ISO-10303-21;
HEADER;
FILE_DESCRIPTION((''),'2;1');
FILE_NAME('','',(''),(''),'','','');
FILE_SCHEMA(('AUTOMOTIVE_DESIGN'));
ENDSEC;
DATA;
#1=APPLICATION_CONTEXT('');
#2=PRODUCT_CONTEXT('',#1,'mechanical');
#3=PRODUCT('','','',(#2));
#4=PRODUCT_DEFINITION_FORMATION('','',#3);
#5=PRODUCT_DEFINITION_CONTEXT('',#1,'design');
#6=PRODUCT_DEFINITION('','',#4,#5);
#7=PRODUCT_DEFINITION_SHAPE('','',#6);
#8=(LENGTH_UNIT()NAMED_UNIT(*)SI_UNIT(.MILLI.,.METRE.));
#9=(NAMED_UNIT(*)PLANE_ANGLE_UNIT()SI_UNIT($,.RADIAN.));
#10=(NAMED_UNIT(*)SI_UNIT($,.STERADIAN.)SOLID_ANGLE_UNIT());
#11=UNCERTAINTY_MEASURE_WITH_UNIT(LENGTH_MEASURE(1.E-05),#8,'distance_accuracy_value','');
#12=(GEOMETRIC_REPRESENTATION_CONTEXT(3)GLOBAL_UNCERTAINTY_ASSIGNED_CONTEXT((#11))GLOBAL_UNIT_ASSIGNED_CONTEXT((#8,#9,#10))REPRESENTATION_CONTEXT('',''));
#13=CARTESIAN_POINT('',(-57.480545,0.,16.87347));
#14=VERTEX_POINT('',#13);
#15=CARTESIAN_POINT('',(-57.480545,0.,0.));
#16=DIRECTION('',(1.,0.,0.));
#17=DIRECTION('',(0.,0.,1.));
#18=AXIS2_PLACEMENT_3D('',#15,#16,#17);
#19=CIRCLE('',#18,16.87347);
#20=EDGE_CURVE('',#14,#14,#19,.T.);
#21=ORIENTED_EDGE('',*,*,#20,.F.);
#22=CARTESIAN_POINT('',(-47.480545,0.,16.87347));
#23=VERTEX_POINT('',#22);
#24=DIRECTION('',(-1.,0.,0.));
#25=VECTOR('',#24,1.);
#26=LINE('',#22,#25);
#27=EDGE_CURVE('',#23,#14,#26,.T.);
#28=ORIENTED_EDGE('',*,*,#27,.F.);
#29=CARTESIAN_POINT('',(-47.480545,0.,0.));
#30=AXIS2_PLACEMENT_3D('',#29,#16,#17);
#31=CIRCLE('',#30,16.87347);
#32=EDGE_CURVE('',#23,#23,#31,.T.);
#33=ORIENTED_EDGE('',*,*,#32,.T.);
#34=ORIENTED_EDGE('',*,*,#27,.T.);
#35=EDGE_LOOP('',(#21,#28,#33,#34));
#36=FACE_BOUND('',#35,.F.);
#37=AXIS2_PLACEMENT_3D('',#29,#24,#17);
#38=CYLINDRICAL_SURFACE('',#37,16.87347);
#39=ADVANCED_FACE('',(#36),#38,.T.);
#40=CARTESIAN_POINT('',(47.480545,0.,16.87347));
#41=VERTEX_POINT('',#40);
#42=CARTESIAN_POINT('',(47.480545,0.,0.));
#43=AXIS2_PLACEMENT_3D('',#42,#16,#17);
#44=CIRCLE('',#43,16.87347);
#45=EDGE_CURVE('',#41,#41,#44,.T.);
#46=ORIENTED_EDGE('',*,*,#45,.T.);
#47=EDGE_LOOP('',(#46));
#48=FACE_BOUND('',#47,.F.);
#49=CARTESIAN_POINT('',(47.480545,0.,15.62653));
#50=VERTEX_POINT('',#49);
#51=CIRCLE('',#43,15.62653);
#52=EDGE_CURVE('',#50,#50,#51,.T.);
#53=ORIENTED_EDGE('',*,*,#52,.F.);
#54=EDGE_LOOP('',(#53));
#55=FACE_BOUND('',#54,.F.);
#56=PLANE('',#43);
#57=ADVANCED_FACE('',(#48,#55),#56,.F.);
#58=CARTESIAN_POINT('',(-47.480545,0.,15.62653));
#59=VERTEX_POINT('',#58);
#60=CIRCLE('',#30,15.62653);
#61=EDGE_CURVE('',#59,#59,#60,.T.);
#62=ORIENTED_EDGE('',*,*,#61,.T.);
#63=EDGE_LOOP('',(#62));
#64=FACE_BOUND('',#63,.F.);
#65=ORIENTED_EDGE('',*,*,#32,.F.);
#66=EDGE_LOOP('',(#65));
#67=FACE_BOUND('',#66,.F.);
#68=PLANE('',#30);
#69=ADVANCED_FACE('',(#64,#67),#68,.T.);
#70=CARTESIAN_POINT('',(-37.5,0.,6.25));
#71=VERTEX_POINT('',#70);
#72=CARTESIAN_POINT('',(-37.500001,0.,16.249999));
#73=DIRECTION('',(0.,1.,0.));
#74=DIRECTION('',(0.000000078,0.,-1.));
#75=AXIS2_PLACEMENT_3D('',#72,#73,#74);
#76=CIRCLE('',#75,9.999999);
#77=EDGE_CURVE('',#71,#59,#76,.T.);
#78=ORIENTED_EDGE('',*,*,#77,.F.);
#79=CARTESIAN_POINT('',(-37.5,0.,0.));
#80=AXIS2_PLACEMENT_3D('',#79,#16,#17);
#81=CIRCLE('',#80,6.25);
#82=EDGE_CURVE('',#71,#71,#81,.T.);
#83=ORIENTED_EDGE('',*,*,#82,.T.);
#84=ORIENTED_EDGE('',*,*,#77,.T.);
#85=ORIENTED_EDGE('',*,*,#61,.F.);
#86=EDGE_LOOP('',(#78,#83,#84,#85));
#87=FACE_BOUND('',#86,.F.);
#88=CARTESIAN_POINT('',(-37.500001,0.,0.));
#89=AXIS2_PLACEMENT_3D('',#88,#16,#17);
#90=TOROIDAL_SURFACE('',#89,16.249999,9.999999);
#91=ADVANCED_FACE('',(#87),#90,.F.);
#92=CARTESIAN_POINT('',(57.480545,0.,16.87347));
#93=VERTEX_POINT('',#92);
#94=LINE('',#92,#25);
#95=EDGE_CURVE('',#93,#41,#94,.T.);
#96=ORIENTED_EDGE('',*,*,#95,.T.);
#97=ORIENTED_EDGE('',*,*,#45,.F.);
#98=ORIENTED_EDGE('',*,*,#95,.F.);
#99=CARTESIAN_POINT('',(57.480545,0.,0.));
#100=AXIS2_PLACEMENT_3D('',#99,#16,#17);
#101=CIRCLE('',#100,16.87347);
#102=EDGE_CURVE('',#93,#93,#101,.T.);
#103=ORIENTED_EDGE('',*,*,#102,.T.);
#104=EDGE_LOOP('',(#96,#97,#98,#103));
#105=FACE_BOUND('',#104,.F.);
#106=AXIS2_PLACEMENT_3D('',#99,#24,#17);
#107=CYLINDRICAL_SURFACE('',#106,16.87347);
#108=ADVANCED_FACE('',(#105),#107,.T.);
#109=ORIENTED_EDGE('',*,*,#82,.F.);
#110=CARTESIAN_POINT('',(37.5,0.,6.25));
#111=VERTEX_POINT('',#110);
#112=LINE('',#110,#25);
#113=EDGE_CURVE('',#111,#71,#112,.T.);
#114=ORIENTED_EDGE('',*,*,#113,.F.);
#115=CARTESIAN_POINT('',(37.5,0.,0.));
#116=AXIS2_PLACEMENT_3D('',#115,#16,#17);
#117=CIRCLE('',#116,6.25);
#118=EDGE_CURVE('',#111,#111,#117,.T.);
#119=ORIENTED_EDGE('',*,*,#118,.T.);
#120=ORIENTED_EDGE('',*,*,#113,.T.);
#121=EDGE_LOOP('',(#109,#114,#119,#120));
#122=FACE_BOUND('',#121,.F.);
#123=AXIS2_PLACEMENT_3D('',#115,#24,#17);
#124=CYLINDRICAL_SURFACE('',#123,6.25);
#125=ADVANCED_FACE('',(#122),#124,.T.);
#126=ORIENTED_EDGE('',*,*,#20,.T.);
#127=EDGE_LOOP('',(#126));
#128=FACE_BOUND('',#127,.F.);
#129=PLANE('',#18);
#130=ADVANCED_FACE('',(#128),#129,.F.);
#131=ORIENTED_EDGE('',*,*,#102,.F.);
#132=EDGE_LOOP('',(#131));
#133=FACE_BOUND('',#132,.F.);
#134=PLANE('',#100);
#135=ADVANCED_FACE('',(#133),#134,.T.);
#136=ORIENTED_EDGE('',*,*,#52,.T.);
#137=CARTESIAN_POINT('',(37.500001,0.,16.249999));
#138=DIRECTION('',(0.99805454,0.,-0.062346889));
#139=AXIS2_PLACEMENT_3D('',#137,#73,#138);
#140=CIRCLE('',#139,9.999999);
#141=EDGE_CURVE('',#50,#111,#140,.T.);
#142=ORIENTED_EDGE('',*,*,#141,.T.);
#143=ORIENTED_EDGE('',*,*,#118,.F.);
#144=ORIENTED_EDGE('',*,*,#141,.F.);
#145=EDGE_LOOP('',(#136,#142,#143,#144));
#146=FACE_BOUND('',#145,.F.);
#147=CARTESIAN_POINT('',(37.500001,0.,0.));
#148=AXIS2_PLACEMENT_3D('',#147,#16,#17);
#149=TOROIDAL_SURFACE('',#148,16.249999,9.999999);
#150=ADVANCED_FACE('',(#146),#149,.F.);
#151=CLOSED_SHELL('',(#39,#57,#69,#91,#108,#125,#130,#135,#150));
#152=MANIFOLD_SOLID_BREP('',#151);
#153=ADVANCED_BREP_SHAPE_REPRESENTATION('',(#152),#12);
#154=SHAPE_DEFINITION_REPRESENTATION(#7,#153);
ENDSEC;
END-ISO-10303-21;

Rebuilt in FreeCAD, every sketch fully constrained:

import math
import FreeCAD as App
import Part
import Sketcher
Q = App.Units.Quantity

doc = App.newDocument("Part")
body = doc.addObject("PartDesign::Body", "Body")

# Sketch on XZ plane
sketch1 = doc.addObject("Sketcher::SketchObject", "Sketch")
body.addObject(sketch1)
sketch1.AttachmentSupport = (doc.XZ_Plane, [""])
sketch1.MapMode = "FlatFace"
sketch1.addGeometry([
    Part.LineSegment(App.Vector(37.5, 6.2, 0), App.Vector(-37.5, 6.2, 0)),  # 0
    Part.ArcOfCircle(Part.Circle(App.Vector(-37.5, 16.2, 0), App.Vector(0, 0, 1), 10), math.radians(-176), math.radians(-90)),  # 1
    Part.LineSegment(App.Vector(-47.5, 15.6, 0), App.Vector(-47.5, 16.9, 0)),  # 2
    Part.LineSegment(App.Vector(-47.5, 16.9, 0), App.Vector(-57.5, 16.9, 0)),  # 3
    Part.LineSegment(App.Vector(-57.5, 16.9, 0), App.Vector(-57.5, 0, 0)),  # 4
    Part.LineSegment(App.Vector(-57.5, 0, 0), App.Vector(57.5, 0, 0)),  # 5
    Part.LineSegment(App.Vector(57.5, 0, 0), App.Vector(57.5, 16.9, 0)),  # 6
    Part.LineSegment(App.Vector(57.5, 16.9, 0), App.Vector(47.5, 16.9, 0)),  # 7
    Part.LineSegment(App.Vector(47.5, 16.9, 0), App.Vector(47.5, 15.6, 0)),  # 8
    Part.ArcOfCircle(Part.Circle(App.Vector(37.5, 16.2, 0), App.Vector(0, 0, 1), 10), math.radians(-90), math.radians(-4)),  # 9
], False)
sketch1.addConstraint([
    Sketcher.Constraint("Tangent", 0, 2, 1, 2),
    Sketcher.Constraint("Coincident", 1, 1, 2, 1),
    Sketcher.Constraint("Coincident", 2, 2, 3, 1),
    Sketcher.Constraint("Coincident", 3, 2, 4, 1),
    Sketcher.Constraint("Coincident", 4, 2, 5, 1),
    Sketcher.Constraint("Coincident", 5, 2, 6, 1),
    Sketcher.Constraint("Coincident", 6, 2, 7, 1),
    Sketcher.Constraint("Coincident", 7, 2, 8, 1),
    Sketcher.Constraint("Coincident", 8, 2, 9, 2),
    Sketcher.Constraint("Tangent", 9, 1, 0, 1),
    Sketcher.Constraint("Horizontal", 0),
    Sketcher.Constraint("Vertical", 2),
    Sketcher.Constraint("Horizontal", 3),
    Sketcher.Constraint("Vertical", 4),
    Sketcher.Constraint("Horizontal", 5),
    Sketcher.Constraint("Vertical", 6),
    Sketcher.Constraint("Horizontal", 7),
    Sketcher.Constraint("Vertical", 8),
    Sketcher.Constraint("Equal", 1, 9),
    Sketcher.Constraint("Symmetric", 4, 2, 5, 2, -1, 1),
    Sketcher.Constraint("Symmetric", 2, 2, 7, 2, -2),
    Sketcher.Constraint("Horizontal", 1, 1, 8, 2),
    Sketcher.Constraint("Radius", 1, Q("9.999999 mm")),
    Sketcher.Constraint("DistanceX", 0, 2, 0, 1, Q("75 mm")),
    Sketcher.Constraint("DistanceX", 3, 2, 3, 1, Q("10 mm")),
    Sketcher.Constraint("DistanceY", -1, 1, 1, 3, Q("16.249999 mm")),
    Sketcher.Constraint("DistanceX", 5, 1, 5, 2, Q("114.96109 mm")),
    Sketcher.Constraint("DistanceY", 2, 1, 2, 2, Q("1.24694 mm")),
])
revolution = doc.addObject("PartDesign::Revolution", "Revolution")
body.addObject(revolution)
revolution.Profile = sketch1
revolution.ReferenceAxis = (sketch1, ["H_Axis"])
revolution.Angle = 360

doc.recompute()
